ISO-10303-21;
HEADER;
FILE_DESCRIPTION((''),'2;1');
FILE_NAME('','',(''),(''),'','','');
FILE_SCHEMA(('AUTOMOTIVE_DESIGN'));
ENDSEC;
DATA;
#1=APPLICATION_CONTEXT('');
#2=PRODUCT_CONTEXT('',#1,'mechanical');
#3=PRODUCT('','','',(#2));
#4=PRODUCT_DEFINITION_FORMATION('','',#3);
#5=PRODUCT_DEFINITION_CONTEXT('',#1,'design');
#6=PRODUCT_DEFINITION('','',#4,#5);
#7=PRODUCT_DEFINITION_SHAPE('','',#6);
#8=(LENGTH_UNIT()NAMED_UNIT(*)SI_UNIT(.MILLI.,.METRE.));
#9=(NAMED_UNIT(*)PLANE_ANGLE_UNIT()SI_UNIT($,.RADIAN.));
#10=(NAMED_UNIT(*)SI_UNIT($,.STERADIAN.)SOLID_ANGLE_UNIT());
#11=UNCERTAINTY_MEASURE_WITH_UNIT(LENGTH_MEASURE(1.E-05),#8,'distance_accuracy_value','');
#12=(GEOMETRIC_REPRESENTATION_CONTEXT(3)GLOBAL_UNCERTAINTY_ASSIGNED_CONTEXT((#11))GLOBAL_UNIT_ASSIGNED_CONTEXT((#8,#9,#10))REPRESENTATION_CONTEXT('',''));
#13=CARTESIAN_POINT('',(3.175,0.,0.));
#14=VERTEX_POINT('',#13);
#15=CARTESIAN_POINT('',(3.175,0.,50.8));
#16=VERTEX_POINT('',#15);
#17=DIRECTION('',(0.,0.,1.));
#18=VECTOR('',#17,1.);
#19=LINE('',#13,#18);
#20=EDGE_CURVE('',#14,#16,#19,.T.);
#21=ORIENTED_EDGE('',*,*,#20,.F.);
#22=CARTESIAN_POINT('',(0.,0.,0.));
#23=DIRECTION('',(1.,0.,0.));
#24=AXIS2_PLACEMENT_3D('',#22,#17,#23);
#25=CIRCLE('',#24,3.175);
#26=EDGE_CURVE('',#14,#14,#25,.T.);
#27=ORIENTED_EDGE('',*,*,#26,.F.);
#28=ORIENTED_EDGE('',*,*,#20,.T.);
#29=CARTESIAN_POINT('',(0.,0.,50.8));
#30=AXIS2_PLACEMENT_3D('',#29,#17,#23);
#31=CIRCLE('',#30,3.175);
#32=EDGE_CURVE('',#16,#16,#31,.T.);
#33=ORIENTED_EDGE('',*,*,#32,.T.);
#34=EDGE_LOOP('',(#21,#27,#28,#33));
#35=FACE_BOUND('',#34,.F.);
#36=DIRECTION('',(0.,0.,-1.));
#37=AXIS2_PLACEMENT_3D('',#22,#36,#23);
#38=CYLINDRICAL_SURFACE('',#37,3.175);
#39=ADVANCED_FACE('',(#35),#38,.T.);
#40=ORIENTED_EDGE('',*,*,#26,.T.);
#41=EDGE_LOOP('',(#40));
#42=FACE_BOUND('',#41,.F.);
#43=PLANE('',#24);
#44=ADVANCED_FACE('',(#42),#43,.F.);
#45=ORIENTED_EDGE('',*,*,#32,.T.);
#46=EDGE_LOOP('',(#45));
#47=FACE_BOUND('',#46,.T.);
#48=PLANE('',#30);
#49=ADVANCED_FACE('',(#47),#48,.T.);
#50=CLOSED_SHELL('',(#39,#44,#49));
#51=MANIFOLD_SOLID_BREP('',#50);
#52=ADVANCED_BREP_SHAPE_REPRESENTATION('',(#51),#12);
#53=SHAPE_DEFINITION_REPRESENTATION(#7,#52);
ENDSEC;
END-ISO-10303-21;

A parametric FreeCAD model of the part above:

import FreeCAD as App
import Part
import Sketcher
Q = App.Units.Quantity

doc = App.newDocument("Part")
body = doc.addObject("PartDesign::Body", "Body")

sketch1 = body.newObject("Sketcher::SketchObject", "Sketch")
sketch1.AttachmentSupport = (doc.getObject("XY_Plane"), [""])
sketch1.MapMode = "FlatFace"
sketch1.addGeometry(Part.Circle(App.Vector(0, 0, 0), App.Vector(0, 0, 1), 3.175), False)
sketch1.addConstraint([
    Sketcher.Constraint("Coincident", 0, 3, -1, 1),
    Sketcher.Constraint("Diameter", 0, Q("0.25 in")),
])
pad1 = body.newObject("PartDesign::Pad", "Pad")
pad1.Profile = sketch1
pad1.Length = Q("2 in")

doc.recompute()
